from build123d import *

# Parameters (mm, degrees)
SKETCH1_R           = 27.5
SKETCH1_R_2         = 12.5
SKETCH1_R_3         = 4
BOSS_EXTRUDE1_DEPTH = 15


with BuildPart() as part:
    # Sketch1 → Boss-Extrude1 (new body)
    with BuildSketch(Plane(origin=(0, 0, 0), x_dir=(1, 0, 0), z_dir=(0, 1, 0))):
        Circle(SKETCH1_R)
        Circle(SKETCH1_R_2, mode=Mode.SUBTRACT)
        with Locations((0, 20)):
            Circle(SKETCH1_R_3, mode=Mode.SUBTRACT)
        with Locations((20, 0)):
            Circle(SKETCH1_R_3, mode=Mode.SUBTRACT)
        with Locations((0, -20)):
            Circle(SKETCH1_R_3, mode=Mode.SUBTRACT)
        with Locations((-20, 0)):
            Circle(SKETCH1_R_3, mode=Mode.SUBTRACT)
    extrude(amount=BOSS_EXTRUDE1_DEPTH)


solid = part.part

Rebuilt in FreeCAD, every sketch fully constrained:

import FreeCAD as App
import Part
import Sketcher

V = App.Vector
Q = App.Units.Quantity

doc = App.newDocument("Part")
params = doc.addObject("Spreadsheet::Sheet", "Params")
for row, (alias, value) in enumerate([
    ("sketch1_diameter", "55 mm"),
    ("sketch1_diameter2", "8 mm"),
    ("sketch1_diameter3", "25 mm"),
    ("pad1_length", "15 mm"),
], start=1):
    params.set(f"A{row}", alias)
    params.set(f"B{row}", "=" + value)
    params.setAlias(f"B{row}", alias)

body = doc.addObject("PartDesign::Body", "Body")

sketch1 = body.newObject("Sketcher::SketchObject", "Sketch")
sketch1.AttachmentSupport = (doc.getObject("XZ_Plane"), [""])
sketch1.MapMode = "FlatFace"
sketch1.addGeometry(Part.Circle(V(0, 0, 0), V(0, 0, 1), 27.5), False)
sketch1.addGeometry(Part.Circle(V(0, 20, 0), V(0, 0, 1), 4), False)
sketch1.addGeometry(Part.Circle(V(-20, 0, 0), V(0, 0, 1), 4), False)
sketch1.addGeometry(Part.Circle(V(0, 0, 0), V(0, 0, 1), 12.5), False)
sketch1.addGeometry(Part.Circle(V(20, 0, 0), V(0, 0, 1), 4), False)
sketch1.addGeometry(Part.Circle(V(0, -20, 0), V(0, 0, 1), 4), False)
sketch1.addConstraint(Sketcher.Constraint("Coincident", 0, 3, -1, 1))
sketch1.addConstraint(Sketcher.Constraint("Coincident", 3, 3, -1, 1))
sketch1.addConstraint(Sketcher.Constraint("Equal", 1, 2))
sketch1.addConstraint(Sketcher.Constraint("Equal", 2, 4))
sketch1.addConstraint(Sketcher.Constraint("Equal", 4, 5))
sketch1.addConstraint(Sketcher.Constraint("Symmetric", 2, 3, 4, 3, -1, 1))
sketch1.addConstraint(Sketcher.Constraint("Symmetric", 1, 3, 5, 3, -1, 1))
sketch1.addConstraint(Sketcher.Constraint("PointOnObject", 1, 3, -2))
sketch1.addConstraint(Sketcher.Constraint("PointOnObject", 2, 3, -1))
sketch1.addConstraint(Sketcher.Constraint("Diameter", 0, Q("55 mm")))
sketch1.addConstraint(Sketcher.Constraint("Diameter", 1, Q("8 mm")))
sketch1.addConstraint(Sketcher.Constraint("Diameter", 3, Q("25 mm")))
sketch1.addConstraint(Sketcher.Constraint("DistanceY", -1, 1, 1, 3, Q("20 mm")))
sketch1.addConstraint(Sketcher.Constraint("DistanceX", 2, 3, -1, 1, Q("20 mm")))
sketch1.setExpression("Constraints[9]", "Params.sketch1_diameter")
sketch1.setExpression("Constraints[10]", "Params.sketch1_diameter2")
sketch1.setExpression("Constraints[11]", "Params.sketch1_diameter3")
pad1 = body.newObject("PartDesign::Pad", "Pad")
pad1.Profile = sketch1
pad1.setExpression("Length", "Params.pad1_length")
pad1.Reversed = True

doc.recompute()
